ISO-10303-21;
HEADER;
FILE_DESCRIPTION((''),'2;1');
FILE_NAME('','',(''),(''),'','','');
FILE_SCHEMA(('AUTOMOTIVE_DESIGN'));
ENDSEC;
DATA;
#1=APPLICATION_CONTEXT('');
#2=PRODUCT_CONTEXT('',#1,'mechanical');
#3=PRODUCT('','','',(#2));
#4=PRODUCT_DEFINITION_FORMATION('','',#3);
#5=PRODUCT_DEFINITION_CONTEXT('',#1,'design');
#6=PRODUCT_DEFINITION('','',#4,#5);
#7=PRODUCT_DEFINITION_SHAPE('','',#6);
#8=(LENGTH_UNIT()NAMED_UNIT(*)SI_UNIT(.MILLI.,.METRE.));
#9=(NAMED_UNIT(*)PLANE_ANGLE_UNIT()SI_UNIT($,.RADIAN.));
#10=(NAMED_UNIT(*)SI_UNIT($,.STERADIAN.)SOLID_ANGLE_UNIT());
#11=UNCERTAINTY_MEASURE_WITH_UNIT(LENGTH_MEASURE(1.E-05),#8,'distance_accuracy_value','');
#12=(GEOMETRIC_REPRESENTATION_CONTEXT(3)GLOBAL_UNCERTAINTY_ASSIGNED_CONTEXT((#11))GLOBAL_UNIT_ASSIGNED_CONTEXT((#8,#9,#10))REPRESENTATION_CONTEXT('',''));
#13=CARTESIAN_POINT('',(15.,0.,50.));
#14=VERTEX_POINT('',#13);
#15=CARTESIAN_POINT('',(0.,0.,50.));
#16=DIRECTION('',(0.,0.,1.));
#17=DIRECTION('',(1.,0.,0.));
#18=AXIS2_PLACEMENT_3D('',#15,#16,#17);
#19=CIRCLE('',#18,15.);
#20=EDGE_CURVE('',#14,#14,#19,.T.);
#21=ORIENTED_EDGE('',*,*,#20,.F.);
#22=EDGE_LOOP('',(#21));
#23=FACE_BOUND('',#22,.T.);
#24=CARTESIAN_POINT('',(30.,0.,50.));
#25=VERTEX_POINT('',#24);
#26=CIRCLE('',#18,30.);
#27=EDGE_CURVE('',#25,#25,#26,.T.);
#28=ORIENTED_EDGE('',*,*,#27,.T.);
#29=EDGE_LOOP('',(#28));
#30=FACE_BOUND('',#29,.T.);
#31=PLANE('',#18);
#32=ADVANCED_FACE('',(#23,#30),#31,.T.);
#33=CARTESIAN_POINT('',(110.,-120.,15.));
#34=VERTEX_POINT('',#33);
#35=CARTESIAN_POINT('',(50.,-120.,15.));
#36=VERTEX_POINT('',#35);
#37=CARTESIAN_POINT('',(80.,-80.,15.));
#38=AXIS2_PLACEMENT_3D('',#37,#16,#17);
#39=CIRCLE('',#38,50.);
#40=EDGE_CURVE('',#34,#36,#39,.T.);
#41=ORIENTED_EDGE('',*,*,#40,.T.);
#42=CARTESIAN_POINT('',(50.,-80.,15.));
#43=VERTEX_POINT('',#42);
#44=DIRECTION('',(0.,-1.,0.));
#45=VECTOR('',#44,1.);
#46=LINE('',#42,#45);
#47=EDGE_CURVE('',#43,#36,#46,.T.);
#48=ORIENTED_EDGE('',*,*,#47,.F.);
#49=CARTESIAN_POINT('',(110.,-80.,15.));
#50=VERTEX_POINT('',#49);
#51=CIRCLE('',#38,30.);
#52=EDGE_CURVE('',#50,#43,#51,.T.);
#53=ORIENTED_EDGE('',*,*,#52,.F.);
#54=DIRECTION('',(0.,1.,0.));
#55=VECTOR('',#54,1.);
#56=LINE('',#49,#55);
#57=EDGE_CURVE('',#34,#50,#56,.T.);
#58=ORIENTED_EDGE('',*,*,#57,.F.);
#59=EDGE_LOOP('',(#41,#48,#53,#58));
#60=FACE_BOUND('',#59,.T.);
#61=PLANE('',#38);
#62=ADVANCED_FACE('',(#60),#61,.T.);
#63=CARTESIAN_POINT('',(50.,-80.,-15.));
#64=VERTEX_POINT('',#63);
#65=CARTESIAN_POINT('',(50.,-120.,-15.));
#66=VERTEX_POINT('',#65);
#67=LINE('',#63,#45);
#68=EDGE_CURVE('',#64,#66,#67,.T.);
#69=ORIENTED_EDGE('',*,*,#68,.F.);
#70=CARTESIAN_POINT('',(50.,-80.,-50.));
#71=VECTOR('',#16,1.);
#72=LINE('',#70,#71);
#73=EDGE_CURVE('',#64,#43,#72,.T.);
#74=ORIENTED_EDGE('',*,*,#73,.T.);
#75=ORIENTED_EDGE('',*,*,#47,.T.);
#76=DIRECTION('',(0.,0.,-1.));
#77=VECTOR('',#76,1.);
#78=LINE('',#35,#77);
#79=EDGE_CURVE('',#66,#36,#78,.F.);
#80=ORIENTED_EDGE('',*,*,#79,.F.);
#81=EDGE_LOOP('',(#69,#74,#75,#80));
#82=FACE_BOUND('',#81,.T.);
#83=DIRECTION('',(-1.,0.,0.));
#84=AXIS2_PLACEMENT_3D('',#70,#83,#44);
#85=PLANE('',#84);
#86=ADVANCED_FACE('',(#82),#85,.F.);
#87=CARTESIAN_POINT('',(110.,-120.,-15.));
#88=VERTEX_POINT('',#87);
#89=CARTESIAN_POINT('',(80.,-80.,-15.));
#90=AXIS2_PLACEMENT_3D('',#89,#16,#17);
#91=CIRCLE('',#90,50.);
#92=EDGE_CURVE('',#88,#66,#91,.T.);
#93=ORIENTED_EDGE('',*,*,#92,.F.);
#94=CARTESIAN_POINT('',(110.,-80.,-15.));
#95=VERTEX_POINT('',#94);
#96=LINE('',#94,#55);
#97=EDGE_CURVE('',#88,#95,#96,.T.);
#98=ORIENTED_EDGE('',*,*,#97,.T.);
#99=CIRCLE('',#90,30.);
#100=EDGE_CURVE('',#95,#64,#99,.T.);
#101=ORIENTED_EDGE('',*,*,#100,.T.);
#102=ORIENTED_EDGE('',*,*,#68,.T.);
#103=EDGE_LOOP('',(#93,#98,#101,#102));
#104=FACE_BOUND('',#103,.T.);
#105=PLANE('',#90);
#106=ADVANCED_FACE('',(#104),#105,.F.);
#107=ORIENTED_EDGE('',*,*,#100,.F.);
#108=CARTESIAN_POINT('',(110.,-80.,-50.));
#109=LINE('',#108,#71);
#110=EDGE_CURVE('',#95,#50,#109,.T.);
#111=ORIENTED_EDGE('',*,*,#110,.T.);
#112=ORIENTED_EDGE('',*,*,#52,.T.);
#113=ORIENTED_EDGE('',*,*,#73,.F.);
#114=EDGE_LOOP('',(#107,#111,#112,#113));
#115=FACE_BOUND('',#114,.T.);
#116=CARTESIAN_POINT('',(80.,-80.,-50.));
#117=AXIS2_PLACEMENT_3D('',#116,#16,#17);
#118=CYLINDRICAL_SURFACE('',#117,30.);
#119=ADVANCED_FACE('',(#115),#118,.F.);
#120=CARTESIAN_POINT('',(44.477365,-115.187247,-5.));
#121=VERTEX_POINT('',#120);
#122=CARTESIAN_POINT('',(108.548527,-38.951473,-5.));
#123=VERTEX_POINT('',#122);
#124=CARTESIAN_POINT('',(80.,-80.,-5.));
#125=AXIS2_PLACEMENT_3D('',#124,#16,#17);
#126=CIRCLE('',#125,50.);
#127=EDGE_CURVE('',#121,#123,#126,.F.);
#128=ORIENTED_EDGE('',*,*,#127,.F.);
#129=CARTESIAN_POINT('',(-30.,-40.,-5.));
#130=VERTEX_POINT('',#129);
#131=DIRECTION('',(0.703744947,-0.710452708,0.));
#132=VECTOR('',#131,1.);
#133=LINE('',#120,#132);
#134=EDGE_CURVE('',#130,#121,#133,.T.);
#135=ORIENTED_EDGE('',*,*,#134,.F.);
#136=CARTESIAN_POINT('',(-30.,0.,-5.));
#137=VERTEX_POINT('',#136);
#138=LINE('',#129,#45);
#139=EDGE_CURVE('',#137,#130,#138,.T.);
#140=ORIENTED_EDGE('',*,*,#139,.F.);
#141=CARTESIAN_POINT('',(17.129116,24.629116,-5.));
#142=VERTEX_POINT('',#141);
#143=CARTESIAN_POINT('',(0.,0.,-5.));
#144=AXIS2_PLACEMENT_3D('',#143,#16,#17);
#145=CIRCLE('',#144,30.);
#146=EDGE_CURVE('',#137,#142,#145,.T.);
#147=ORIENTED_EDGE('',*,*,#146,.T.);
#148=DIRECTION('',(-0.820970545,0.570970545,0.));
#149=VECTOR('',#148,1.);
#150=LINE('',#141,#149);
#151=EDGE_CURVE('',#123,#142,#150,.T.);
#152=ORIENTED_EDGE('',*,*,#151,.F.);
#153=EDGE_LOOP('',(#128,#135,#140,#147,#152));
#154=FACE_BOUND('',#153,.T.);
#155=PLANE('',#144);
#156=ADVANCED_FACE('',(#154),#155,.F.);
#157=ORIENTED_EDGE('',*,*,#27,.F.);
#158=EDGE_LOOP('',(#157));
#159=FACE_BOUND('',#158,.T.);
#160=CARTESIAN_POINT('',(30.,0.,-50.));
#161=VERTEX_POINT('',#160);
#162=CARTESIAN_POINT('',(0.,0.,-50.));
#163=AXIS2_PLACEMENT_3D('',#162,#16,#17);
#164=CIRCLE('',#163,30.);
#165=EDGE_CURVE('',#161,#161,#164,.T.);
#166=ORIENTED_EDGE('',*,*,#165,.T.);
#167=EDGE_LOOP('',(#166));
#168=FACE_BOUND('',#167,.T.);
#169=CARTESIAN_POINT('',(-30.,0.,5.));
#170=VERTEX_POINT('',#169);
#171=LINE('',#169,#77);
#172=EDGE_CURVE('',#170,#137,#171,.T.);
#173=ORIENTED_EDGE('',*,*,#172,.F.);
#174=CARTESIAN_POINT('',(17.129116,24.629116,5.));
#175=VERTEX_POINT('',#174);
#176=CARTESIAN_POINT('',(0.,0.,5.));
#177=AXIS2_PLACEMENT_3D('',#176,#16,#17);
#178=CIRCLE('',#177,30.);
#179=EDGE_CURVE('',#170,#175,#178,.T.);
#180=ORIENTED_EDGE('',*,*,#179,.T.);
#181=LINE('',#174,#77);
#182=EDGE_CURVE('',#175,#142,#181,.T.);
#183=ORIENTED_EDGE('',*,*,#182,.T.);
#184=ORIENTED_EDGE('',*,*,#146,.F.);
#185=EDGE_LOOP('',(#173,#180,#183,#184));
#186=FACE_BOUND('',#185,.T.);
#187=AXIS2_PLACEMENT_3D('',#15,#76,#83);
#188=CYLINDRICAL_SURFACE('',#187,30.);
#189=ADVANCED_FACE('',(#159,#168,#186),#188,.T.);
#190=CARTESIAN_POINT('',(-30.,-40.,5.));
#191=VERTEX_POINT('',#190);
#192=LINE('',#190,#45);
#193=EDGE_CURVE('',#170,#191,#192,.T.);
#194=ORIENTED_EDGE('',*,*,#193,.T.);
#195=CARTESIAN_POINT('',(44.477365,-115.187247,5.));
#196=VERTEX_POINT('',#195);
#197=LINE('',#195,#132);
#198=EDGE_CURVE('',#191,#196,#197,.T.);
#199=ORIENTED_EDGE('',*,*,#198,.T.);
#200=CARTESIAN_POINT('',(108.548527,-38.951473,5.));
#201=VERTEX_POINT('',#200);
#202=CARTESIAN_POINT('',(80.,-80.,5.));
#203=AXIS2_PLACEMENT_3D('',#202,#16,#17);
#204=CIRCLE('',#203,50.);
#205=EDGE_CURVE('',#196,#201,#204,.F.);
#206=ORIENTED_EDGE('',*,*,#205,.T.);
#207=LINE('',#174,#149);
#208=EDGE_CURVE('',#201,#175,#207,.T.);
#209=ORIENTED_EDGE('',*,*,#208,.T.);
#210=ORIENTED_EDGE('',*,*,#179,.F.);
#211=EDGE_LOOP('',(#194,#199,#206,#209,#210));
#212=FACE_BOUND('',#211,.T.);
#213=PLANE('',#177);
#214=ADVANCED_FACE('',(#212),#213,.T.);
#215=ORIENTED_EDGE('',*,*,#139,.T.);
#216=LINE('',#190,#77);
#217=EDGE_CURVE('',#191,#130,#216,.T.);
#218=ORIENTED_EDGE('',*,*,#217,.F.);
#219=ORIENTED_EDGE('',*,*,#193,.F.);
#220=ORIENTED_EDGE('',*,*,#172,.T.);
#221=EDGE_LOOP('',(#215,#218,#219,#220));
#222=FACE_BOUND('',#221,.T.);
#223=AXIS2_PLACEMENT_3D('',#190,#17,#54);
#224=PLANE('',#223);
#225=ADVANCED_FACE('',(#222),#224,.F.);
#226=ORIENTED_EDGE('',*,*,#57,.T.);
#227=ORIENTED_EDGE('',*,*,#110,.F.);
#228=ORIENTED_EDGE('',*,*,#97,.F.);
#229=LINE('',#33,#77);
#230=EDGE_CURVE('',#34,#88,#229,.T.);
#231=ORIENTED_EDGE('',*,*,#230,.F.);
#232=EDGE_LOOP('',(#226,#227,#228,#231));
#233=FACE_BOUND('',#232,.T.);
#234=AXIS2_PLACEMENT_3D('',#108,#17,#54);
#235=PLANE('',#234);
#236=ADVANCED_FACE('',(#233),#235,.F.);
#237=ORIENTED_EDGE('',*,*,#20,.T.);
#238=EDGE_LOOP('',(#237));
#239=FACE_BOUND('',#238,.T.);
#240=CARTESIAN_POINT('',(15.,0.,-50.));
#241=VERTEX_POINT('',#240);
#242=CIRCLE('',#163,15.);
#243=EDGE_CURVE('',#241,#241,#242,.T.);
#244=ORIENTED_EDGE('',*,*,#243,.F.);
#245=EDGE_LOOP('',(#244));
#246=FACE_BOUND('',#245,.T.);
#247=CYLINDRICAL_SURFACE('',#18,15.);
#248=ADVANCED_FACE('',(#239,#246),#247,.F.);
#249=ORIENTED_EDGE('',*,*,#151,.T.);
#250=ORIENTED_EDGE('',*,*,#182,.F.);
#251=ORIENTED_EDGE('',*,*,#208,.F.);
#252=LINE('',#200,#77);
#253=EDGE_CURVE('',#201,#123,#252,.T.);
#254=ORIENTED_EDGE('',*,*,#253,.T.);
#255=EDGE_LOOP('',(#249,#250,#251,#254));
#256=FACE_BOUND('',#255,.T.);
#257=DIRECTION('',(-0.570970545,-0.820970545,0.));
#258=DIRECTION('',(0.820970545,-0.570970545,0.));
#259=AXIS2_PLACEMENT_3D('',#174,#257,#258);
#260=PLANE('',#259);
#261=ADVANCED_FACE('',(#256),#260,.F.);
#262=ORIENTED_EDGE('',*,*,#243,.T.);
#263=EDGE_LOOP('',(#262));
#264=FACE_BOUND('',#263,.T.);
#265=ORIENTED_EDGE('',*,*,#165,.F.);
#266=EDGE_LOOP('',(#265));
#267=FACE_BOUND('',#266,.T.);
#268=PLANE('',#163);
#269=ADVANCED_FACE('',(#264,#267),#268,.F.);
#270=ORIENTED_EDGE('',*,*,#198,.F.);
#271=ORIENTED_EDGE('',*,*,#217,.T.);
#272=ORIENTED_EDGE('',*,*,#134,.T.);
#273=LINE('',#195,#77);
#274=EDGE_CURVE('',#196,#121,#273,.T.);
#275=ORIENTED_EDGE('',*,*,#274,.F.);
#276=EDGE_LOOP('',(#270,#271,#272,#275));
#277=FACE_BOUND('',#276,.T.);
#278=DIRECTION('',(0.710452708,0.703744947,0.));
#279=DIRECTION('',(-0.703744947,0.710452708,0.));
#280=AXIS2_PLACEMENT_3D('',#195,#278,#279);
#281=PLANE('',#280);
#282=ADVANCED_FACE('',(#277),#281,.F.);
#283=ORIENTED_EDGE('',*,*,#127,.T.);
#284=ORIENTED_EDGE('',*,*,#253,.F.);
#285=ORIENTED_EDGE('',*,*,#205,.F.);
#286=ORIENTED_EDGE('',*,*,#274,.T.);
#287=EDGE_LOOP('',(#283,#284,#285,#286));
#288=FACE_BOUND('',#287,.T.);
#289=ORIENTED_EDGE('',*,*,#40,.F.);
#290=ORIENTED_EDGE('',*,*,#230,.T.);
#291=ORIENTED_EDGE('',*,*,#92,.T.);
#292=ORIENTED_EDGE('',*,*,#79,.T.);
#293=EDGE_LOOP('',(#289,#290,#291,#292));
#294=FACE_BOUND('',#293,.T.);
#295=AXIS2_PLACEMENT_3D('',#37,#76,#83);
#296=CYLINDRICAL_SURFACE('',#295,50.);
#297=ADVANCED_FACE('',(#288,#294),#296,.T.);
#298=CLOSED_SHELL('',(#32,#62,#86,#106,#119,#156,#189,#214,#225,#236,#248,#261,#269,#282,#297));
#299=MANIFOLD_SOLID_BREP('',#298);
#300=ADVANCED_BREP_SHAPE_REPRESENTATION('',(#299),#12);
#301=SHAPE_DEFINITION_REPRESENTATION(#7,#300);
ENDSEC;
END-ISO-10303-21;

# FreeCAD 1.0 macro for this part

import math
import FreeCAD as App
import Part
import Sketcher


def add_polygon(sketch, points):
    """Adds a closed chain of lines whose ends are joined by coincident constraints."""
    first, n = sketch.GeometryCount, len(points)
    for a, b in zip(points, points[1:] + points[:1]):
        sketch.addGeometry(Part.LineSegment(App.Vector(*a, 0), App.Vector(*b, 0)), False)
    for i in range(n):
        sketch.addConstraint(Sketcher.Constraint("Coincident", first + i, 2, first + (i + 1) % n, 1))

doc = App.newDocument("Part")
body = doc.addObject("PartDesign::Body", "Body")

# Sketch on XY plane
sketch1 = body.newObject("Sketcher::SketchObject", "Sketch")
sketch1.AttachmentSupport = (doc.getObject("XY_Plane"), [""])
sketch1.MapMode = "FlatFace"
sketch1.addGeometry(Part.Circle(App.Vector(0, 0, 0), App.Vector(0, 0, 1), 30), False)
sketch1.addConstraint(Sketcher.Constraint("Coincident", 0, 3, -1, 1))
sketch1.addConstraint(Sketcher.Constraint("Diameter", 0, 60.0))
pad1 = body.newObject("PartDesign::Pad", "Pad")
pad1.Profile = sketch1
pad1.Length = 100
pad1.Midplane = True
body2 = doc.addObject("PartDesign::Body", "Body001")

# Sketch on XY plane
sketch2 = body2.newObject("Sketcher::SketchObject", "Sketch001")
sketch2.AttachmentSupport = (doc.getObject("XY_Plane001"), [""])
sketch2.MapMode = "FlatFace"
sketch2.addGeometry(Part.Circle(App.Vector(80, -80, 0), App.Vector(0, 0, 1), 50), False)
sketch2.addConstraint(Sketcher.Constraint("Diameter", 0, 100.0))
sketch2.addConstraint(Sketcher.Constraint("DistanceX", -1, 1, 0, 3, 80.0))
sketch2.addConstraint(Sketcher.Constraint("DistanceY", 0, 3, -1, 1, 80.0))
pad2 = body2.newObject("PartDesign::Pad", "Pad001")
pad2.Profile = sketch2
pad2.Length = 30
pad2.Midplane = True
body.AllowCompound = True
doc.recompute()

boolean = body.newObject("PartDesign::Boolean", "Boolean")
boolean.Type = "Fuse"
boolean.addObjects([body2])

# Sketch on XY plane
sketch3 = body.newObject("Sketcher::SketchObject", "Sketch002")
sketch3.AttachmentSupport = (doc.getObject("XY_Plane"), [""])
sketch3.MapMode = "FlatFace"
add_polygon(sketch3, [(108.548527, -38.951473), (17.129116, 24.629116), (-30, 0), (-30, -40), (44.477365, -115.187247)])  # lines 0-4
sketch3.addConstraint(Sketcher.Constraint("Vertical", 2))
sketch3.addConstraint(Sketcher.Constraint("PointOnObject", 1, 2, -1))
sketch3.addConstraint(Sketcher.Constraint("DistanceY", 2, 2, 2, 1, 40.0))
sketch3.addConstraint(Sketcher.Constraint("DistanceX", 1, 2, -1, 1, 30.0))
sketch3.addConstraint(Sketcher.Constraint("Distance", 4, 99.584172))
sketch3.addConstraint(Sketcher.Constraint("DistanceX", 0, 2, 3, 2, 27.348248))
sketch3.addConstraint(Sketcher.Constraint("DistanceX", 0, 2, 4, 2, 91.419411))
sketch3.addConstraint(Sketcher.Constraint("DistanceY", 4, 2, 0, 2, 63.580589))
sketch3.addConstraint(Sketcher.Constraint("Distance", 1, 53.176564))
sketch3.addConstraint(Sketcher.Constraint("Distance", 3, 105.830052))
pad3 = body.newObject("PartDesign::Pad", "Pad002")
pad3.Profile = sketch3
pad3.Length = 10
pad3.Midplane = True

# Sketch on XY plane
sketch4 = body.newObject("Sketcher::SketchObject", "Sketch003")
sketch4.AttachmentSupport = (doc.getObject("XY_Plane"), [""])
sketch4.MapMode = "FlatFace"
sketch4.AttachmentOffset = App.Placement(App.Vector(0, 0, 15), App.Rotation())
sketch4.addGeometry(Part.LineSegment(App.Vector(110, -155.272598, 0), App.Vector(110, -80, 0)), False)
sketch4.addGeometry(Part.ArcOfCircle(Part.Circle(App.Vector(80, -80, 0), App.Vector(0, 0, 1), 30), math.radians(0), math.radians(180)), False)
sketch4.addGeometry(Part.LineSegment(App.Vector(50, -80, 0), App.Vector(50, -155.272598, 0)), False)
sketch4.addGeometry(Part.ArcOfCircle(Part.Circle(App.Vector(80, -155.272598, 0), App.Vector(0, 0, 1), 30), math.radians(180), math.radians(360)), False)
sketch4.addConstraint(Sketcher.Constraint("Tangent", 0, 2, 1, 1))
sketch4.addConstraint(Sketcher.Constraint("Tangent", 1, 2, 2, 1))
sketch4.addConstraint(Sketcher.Constraint("Tangent", 2, 2, 3, 1))
sketch4.addConstraint(Sketcher.Constraint("Tangent", 3, 2, 0, 1))
sketch4.addConstraint(Sketcher.Constraint("Vertical", 0))
sketch4.addConstraint(Sketcher.Constraint("Vertical", 2))
sketch4.addConstraint(Sketcher.Constraint("Radius", 1, 30.0))
sketch4.addConstraint(Sketcher.Constraint("DistanceX", -1, 1, 1, 3, 80.0))
sketch4.addConstraint(Sketcher.Constraint("DistanceY", 1, 3, -1, 1, 80.0))
sketch4.addConstraint(Sketcher.Constraint("DistanceY", 0, 1, 0, 2, 75.272598))
pocket1 = body.newObject("PartDesign::Pocket", "Pocket")
pocket1.Profile = sketch4
pocket1.Type = "ThroughAll"

# Sketch on XY plane
sketch5 = body.newObject("Sketcher::SketchObject", "Sketch004")
sketch5.AttachmentSupport = (doc.getObject("XY_Plane"), [""])
sketch5.MapMode = "FlatFace"
sketch5.AttachmentOffset = App.Placement(App.Vector(0, 0, 50), App.Rotation())
sketch5.addGeometry(Part.Circle(App.Vector(0, 0, 0), App.Vector(0, 0, 1), 15), False)
sketch5.addConstraint(Sketcher.Constraint("Coincident", 0, 3, -1, 1))
sketch5.addConstraint(Sketcher.Constraint("Diameter", 0, 30.0))
doc.recompute()
hole = body.newObject("PartDesign::Hole", "Hole")
hole.Profile = sketch5
hole.ThreadType = "None"
hole.Diameter = 30
hole.DepthType = "ThroughAll"

doc.recompute()
